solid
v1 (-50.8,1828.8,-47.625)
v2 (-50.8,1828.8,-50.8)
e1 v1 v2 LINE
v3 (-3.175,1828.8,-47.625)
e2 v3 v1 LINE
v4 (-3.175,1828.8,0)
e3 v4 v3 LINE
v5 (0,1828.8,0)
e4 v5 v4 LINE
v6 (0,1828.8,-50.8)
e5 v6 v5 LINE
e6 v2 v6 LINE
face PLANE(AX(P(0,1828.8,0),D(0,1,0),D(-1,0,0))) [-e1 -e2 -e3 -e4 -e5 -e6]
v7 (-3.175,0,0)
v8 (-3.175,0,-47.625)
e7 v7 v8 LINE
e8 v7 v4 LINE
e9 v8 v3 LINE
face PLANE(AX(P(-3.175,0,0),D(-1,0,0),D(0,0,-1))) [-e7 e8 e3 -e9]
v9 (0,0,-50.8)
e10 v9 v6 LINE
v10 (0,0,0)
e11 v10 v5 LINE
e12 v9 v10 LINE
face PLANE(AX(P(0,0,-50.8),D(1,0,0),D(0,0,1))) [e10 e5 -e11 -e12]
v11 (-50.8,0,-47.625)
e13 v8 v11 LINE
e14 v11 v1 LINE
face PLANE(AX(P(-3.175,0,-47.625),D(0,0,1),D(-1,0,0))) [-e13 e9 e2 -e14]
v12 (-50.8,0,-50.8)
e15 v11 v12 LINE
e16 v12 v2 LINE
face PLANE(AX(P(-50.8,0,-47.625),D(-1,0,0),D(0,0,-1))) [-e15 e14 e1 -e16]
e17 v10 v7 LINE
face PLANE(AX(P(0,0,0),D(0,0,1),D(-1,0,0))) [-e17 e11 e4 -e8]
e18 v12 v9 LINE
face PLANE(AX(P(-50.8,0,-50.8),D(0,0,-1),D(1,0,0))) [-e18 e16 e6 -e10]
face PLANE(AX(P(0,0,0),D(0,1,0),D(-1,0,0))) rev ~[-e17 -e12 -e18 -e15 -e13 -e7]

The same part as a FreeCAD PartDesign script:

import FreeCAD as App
import Part
import Sketcher
from FreeCAD import Vector
Q = App.Units.Quantity

doc = App.newDocument("Part")
body = doc.addObject("PartDesign::Body", "Body")

sketch1 = body.newObject("Sketcher::SketchObject", "Sketch")
sketch1.AttachmentSupport = (doc.getObject("XZ_Plane"), [""])
sketch1.MapMode = "FlatFace"
sketch1.addGeometry(Part.LineSegment(Vector(-3.2, 0, 0), Vector(0, 0, 0)), False)
sketch1.addGeometry(Part.LineSegment(Vector(0, 0, 0), Vector(0, -50.8, 0)), False)
sketch1.addGeometry(Part.LineSegment(Vector(0, -50.8, 0), Vector(-50.8, -50.8, 0)), False)
sketch1.addGeometry(Part.LineSegment(Vector(-50.8, -50.8, 0), Vector(-50.8, -47.6, 0)), False)
sketch1.addGeometry(Part.LineSegment(Vector(-50.8, -47.6, 0), Vector(-3.2, -47.6, 0)), False)
sketch1.addGeometry(Part.LineSegment(Vector(-3.2, -47.6, 0), Vector(-3.2, 0, 0)), False)
sketch1.addConstraint(Sketcher.Constraint("Coincident", 0, 2, 1, 1))
sketch1.addConstraint(Sketcher.Constraint("Coincident", 1, 2, 2, 1))
sketch1.addConstraint(Sketcher.Constraint("Coincident", 2, 2, 3, 1))
sketch1.addConstraint(Sketcher.Constraint("Coincident", 3, 2, 4, 1))
sketch1.addConstraint(Sketcher.Constraint("Coincident", 4, 2, 5, 1))
sketch1.addConstraint(Sketcher.Constraint("Coincident", 5, 2, 0, 1))
sketch1.addConstraint(Sketcher.Constraint("Horizontal", 0))
sketch1.addConstraint(Sketcher.Constraint("Vertical", 1))
sketch1.addConstraint(Sketcher.Constraint("Horizontal", 2))
sketch1.addConstraint(Sketcher.Constraint("Vertical", 3))
sketch1.addConstraint(Sketcher.Constraint("Horizontal", 4))
sketch1.addConstraint(Sketcher.Constraint("Vertical", 5))
sketch1.addConstraint(Sketcher.Constraint("Coincident", 0, 2, -1, 1))
sketch1.addConstraint(Sketcher.Constraint("Equal", 2, 1))
sketch1.addConstraint(Sketcher.Constraint("Equal", 0, 3))
sketch1.addConstraint(Sketcher.Constraint("DistanceX", 2, 2, 2, 1, Q("2 in")))
sketch1.addConstraint(Sketcher.Constraint("DistanceX", 0, 1, 0, 2, Q("0.125 in")))
pad1 = body.newObject("PartDesign::Pad", "Pad")
pad1.Profile = sketch1
pad1.Length = Q("72 in")
pad1.Reversed = True

doc.recompute()
